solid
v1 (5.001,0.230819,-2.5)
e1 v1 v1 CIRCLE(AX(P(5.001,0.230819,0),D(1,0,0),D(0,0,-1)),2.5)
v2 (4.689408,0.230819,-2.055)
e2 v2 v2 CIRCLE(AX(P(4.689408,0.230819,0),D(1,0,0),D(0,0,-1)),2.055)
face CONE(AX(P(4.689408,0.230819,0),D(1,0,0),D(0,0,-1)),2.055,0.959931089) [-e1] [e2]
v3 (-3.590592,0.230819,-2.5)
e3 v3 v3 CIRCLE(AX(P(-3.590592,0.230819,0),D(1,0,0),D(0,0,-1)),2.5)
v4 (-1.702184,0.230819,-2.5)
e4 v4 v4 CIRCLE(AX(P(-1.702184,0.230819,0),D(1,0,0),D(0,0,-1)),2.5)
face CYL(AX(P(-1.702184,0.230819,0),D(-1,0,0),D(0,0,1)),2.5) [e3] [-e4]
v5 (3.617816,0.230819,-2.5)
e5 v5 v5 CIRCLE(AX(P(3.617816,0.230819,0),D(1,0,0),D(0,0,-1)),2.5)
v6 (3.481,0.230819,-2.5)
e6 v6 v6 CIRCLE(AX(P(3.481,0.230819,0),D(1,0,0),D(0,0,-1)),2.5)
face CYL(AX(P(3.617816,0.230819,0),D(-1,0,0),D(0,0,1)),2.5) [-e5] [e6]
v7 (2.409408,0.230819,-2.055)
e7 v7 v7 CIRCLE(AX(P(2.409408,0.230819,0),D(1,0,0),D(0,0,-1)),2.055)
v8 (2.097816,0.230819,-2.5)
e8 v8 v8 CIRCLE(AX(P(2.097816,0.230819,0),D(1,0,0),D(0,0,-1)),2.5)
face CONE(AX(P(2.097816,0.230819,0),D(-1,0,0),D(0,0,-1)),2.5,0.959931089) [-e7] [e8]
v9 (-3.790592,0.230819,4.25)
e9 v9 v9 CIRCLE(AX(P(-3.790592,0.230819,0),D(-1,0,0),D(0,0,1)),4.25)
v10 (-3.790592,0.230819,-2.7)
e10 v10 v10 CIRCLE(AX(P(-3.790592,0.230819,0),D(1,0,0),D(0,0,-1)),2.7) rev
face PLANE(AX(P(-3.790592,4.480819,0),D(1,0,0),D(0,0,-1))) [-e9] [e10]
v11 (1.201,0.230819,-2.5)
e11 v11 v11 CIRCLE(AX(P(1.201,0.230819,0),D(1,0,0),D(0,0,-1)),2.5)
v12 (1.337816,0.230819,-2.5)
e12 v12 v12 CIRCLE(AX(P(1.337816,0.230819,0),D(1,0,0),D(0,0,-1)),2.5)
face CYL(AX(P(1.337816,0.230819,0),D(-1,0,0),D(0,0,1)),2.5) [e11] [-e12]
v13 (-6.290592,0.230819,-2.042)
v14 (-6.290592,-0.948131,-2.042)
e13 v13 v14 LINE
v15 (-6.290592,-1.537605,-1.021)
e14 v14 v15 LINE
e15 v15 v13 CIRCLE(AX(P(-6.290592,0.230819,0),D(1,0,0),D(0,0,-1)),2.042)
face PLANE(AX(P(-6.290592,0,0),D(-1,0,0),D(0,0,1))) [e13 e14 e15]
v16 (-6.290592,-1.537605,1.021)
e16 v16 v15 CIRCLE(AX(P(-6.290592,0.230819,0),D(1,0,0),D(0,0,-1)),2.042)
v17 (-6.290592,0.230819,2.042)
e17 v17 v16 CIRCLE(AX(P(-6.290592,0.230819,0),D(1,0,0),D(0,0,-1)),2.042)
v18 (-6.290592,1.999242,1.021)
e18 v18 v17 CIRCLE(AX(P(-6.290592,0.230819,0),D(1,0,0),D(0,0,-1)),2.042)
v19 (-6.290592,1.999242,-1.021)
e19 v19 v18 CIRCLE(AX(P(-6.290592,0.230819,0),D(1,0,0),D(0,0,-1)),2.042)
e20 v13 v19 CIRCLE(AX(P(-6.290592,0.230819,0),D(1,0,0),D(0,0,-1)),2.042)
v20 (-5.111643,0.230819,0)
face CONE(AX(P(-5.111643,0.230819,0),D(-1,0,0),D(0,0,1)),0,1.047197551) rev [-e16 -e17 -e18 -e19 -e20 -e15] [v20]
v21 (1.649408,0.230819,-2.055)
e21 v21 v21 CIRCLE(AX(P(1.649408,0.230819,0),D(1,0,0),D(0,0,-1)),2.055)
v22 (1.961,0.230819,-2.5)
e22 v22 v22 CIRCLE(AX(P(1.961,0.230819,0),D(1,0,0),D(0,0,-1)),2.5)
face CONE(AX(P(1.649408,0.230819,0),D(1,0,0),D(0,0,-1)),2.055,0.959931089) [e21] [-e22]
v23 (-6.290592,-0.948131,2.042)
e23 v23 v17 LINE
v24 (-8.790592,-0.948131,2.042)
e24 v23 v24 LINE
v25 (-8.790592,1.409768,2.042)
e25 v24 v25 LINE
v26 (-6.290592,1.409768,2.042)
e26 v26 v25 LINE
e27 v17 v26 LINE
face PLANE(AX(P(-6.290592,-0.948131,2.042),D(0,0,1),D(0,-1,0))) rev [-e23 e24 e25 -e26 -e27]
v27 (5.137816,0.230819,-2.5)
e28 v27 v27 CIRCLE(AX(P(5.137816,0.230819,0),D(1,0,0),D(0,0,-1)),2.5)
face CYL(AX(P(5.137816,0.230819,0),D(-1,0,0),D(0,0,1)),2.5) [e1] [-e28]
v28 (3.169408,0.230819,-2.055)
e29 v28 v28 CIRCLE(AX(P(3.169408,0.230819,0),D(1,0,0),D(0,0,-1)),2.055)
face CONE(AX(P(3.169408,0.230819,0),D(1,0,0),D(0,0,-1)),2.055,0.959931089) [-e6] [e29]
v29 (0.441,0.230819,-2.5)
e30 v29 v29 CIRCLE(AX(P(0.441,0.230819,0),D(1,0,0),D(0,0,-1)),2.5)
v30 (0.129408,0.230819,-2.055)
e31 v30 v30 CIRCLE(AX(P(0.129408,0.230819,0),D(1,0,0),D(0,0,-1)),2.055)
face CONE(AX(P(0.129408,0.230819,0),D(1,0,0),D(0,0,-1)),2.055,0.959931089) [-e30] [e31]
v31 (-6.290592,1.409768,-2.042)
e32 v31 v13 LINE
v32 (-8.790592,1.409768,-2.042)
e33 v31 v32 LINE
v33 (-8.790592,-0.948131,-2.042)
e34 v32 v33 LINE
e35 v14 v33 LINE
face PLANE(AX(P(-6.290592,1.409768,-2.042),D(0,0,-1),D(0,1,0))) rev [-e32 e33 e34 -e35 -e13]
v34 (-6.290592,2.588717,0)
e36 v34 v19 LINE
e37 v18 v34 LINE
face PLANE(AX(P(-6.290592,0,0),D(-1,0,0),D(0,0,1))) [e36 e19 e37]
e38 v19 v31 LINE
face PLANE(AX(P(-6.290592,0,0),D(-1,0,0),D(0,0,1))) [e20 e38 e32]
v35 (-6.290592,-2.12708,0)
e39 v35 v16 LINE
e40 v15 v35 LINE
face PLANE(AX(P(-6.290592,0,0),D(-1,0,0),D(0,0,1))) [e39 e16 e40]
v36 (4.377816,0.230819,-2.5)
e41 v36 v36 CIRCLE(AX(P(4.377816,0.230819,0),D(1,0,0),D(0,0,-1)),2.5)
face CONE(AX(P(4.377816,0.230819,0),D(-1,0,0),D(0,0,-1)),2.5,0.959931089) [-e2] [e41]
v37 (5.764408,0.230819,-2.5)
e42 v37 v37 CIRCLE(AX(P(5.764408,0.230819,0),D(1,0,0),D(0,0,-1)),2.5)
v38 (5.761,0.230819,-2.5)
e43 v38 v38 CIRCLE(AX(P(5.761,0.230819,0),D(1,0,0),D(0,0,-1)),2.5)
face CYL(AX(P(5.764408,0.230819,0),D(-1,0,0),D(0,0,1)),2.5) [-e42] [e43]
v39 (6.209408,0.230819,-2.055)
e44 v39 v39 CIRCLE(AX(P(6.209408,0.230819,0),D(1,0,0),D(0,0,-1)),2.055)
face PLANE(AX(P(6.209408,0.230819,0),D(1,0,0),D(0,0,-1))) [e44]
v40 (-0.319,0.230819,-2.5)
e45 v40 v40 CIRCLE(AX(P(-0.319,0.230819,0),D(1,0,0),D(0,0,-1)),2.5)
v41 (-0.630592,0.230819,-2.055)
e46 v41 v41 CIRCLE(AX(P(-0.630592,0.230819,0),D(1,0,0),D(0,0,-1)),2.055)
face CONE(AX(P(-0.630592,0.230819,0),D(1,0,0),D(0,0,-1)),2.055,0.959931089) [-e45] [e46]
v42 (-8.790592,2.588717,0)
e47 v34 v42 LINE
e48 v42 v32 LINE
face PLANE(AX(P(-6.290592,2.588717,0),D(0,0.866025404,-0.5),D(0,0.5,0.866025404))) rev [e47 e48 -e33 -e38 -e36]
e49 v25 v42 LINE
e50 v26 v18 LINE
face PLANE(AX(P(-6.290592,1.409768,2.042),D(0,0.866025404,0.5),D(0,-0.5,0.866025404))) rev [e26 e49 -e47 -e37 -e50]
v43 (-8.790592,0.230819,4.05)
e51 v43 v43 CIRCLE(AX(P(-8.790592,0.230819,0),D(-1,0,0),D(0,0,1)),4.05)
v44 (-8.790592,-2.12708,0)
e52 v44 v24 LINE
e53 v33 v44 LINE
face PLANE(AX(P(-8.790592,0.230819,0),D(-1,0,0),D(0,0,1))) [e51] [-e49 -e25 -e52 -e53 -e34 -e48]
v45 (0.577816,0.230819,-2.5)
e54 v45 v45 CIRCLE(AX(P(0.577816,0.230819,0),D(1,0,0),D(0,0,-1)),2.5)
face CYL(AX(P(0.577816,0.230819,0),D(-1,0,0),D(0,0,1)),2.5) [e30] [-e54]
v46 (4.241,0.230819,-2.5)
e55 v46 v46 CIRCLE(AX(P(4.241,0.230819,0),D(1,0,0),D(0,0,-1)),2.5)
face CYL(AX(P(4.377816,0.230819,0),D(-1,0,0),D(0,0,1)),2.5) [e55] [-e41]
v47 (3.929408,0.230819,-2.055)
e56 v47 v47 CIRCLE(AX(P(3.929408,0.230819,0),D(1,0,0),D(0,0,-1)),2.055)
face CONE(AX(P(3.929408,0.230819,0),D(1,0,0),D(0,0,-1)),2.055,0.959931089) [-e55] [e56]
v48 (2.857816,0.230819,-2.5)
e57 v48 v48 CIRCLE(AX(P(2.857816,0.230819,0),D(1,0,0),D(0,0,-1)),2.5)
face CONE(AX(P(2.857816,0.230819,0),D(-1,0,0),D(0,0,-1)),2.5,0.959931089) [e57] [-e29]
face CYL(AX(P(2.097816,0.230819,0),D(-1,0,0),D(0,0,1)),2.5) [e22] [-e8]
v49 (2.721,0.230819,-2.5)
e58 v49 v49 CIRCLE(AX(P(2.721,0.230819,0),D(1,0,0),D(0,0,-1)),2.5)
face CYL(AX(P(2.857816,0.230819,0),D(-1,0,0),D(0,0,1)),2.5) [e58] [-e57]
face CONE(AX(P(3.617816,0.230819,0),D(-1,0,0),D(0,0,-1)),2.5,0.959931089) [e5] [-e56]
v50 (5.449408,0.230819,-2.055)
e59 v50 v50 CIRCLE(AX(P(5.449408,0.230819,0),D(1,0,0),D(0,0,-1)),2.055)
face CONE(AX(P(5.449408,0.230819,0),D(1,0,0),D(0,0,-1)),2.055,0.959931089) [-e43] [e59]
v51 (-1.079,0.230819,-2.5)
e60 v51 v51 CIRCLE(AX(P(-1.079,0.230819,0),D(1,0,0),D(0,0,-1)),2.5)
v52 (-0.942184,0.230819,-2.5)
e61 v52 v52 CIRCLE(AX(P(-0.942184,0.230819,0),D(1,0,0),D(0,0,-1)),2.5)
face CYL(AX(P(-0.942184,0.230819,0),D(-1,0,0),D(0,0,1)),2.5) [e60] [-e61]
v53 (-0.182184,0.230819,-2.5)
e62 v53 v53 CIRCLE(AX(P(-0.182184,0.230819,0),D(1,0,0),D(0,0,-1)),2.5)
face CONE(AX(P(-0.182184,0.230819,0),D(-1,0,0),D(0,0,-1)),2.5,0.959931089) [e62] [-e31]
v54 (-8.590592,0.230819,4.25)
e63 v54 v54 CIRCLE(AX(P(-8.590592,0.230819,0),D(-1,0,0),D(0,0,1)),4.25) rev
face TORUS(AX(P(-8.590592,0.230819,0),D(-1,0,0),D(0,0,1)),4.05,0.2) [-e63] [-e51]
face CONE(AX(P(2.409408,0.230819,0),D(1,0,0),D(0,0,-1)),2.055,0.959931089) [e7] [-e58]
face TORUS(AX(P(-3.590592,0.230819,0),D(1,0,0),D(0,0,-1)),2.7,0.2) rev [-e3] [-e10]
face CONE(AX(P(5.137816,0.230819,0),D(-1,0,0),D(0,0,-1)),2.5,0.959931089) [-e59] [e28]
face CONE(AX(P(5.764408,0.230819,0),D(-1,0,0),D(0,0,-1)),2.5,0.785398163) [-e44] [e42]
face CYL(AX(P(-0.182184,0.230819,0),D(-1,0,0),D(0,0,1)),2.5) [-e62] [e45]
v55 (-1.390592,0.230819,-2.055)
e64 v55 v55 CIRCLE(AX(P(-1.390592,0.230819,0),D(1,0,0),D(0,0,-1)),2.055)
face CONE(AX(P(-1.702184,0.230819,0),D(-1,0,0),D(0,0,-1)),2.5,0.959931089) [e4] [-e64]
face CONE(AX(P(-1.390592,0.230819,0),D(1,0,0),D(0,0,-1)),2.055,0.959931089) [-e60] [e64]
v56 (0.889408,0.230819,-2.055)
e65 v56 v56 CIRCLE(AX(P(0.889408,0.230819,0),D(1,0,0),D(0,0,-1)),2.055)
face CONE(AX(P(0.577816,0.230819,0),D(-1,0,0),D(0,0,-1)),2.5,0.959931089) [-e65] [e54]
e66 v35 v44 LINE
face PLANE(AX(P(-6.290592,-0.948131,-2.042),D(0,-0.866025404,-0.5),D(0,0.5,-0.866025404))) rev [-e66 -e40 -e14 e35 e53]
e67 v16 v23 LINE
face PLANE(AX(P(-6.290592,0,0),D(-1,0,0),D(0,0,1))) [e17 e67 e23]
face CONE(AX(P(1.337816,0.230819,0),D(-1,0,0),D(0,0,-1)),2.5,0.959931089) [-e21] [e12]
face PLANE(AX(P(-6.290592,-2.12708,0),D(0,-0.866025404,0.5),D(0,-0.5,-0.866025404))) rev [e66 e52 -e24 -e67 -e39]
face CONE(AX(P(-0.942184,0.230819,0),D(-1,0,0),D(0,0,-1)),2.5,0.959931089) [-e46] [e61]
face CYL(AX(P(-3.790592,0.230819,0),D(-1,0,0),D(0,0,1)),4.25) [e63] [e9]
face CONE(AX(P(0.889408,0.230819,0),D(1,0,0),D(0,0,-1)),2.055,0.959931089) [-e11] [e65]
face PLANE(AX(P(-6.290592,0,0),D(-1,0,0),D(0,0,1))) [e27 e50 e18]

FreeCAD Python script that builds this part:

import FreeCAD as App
import Part
import Sketcher
Q = App.Units.Quantity


def edges_at(feature, points):
    """Names of the edges that pass closest to the given points."""
    edges = feature.Shape.Edges
    near = lambda p: min(range(len(edges)), key=lambda i: edges[i].distToShape(Part.Vertex(*p))[0])
    return sorted({f"Edge{near(p) + 1}" for p in points})


def add_polygon(sketch, points):
    """Adds a closed chain of lines whose ends are joined by coincident constraints."""
    first, n = sketch.GeometryCount, len(points)
    for a, b in zip(points, points[1:] + points[:1]):
        sketch.addGeometry(Part.LineSegment(App.Vector(*a, 0), App.Vector(*b, 0)), False)
    for i in range(n):
        sketch.addConstraint(Sketcher.Constraint("Coincident", first + i, 2, first + (i + 1) % n, 1))

doc = App.newDocument("Part")
body = doc.addObject("PartDesign::Body", "Body")

# Sketch on XY plane
sketch1 = body.newObject("Sketcher::SketchObject", "Sketch")
sketch1.AttachmentSupport = (doc.getObject("XY_Plane"), [""])
sketch1.MapMode = "FlatFace"
add_polygon(sketch1, [(-3.8, 4.5), (-3.8, 0.2), (-8.8, 0.2), (-8.8, 4.5)])  # lines 0-3
sketch1.addGeometry(Part.LineSegment(App.Vector(-3.8, 0.2, 0), App.Vector(-8.8, 0.2, 0)), True)  # axis
sketch1.addConstraint([
    Sketcher.Constraint("Vertical", 0),
    Sketcher.Constraint("Horizontal", 1),
    Sketcher.Constraint("Vertical", 2),
    Sketcher.Constraint("Horizontal", 3),
    Sketcher.Constraint("Horizontal", 4),
    Sketcher.Constraint("Coincident", 4, 1, 0, 2),
    Sketcher.Constraint("Vertical", 2, 2, 4, 2),
    Sketcher.Constraint("DistanceX", 1, 2, 1, 1, 5.0),
    Sketcher.Constraint("DistanceY", 0, 2, 0, 1, 4.25),
    Sketcher.Constraint("DistanceY", -1, 1, 0, 2, 0.230819),
    Sketcher.Constraint("DistanceX", 0, 2, -1, 1, 3.790592),
])
revolution = body.newObject("PartDesign::Revolution", "Revolution")
revolution.Profile = sketch1
revolution.ReferenceAxis = (sketch1, ["Axis0"])
revolution.Angle = 360

# Sketch on YZ plane
sketch2 = body.newObject("Sketcher::SketchObject", "Sketch001")
sketch2.AttachmentSupport = (doc.getObject("YZ_Plane"), [""])
sketch2.MapMode = "FlatFace"
sketch2.AttachmentOffset = App.Placement(App.Vector(0, 0, -3.790592), App.Rotation())
sketch2.addGeometry(Part.Circle(App.Vector(0.2, 0, 0), App.Vector(0, 0, 1), 2.5), False)
sketch2.addConstraint([
    Sketcher.Constraint("PointOnObject", 0, 3, -1),
    Sketcher.Constraint("Diameter", 0, 5.0),
    Sketcher.Constraint("DistanceX", -1, 1, 0, 3, 0.230819),
])
pad1 = body.newObject("PartDesign::Pad", "Pad")
pad1.Profile = sketch2
pad1.Length = 2.088408

# Sketch on YZ plane
sketch3 = body.newObject("Sketcher::SketchObject", "Sketch002")
sketch3.AttachmentSupport = (doc.getObject("YZ_Plane"), [""])
sketch3.MapMode = "FlatFace"
sketch3.AttachmentOffset = App.Placement(App.Vector(0, 0, -1.702184), App.Rotation())
sketch3.addGeometry(Part.Circle(App.Vector(0.2, 0, 0), App.Vector(0, 0, 1), 2.5), False)
sketch3.addConstraint([
    Sketcher.Constraint("PointOnObject", 0, 3, -1),
    Sketcher.Constraint("Diameter", 0, 5.0),
    Sketcher.Constraint("DistanceX", -1, 1, 0, 3, 0.230819),
])
pad2 = body.newObject("PartDesign::Pad", "Pad001")
pad2.Profile = sketch3
pad2.Length = 0.311592
pad2.TaperAngle = -55

# Sketch on YZ plane
sketch4 = body.newObject("Sketcher::SketchObject", "Sketch003")
sketch4.AttachmentSupport = (doc.getObject("YZ_Plane"), [""])
sketch4.MapMode = "FlatFace"
sketch4.AttachmentOffset = App.Placement(App.Vector(0, 0, -1.390592), App.Rotation())
sketch4.addGeometry(Part.Circle(App.Vector(0.2, 0, 0), App.Vector(0, 0, 1), 2.1), False)
sketch4.addConstraint([
    Sketcher.Constraint("PointOnObject", 0, 3, -1),
    Sketcher.Constraint("Diameter", 0, 4.11),
    Sketcher.Constraint("DistanceX", -1, 1, 0, 3, 0.230819),
])
pad3 = body.newObject("PartDesign::Pad", "Pad002")
pad3.Profile = sketch4
pad3.Length = 0.311592
pad3.TaperAngle = 55

# Sketch on YZ plane
sketch5 = body.newObject("Sketcher::SketchObject", "Sketch004")
sketch5.AttachmentSupport = (doc.getObject("YZ_Plane"), [""])
sketch5.MapMode = "FlatFace"
sketch5.AttachmentOffset = App.Placement(App.Vector(0, 0, -1.079), App.Rotation())
sketch5.addGeometry(Part.Circle(App.Vector(0.2, 0, 0), App.Vector(0, 0, 1), 2.5), False)
sketch5.addConstraint([
    Sketcher.Constraint("PointOnObject", 0, 3, -1),
    Sketcher.Constraint("Diameter", 0, 5.0),
    Sketcher.Constraint("DistanceX", -1, 1, 0, 3, 0.230819),
])
pad4 = body.newObject("PartDesign::Pad", "Pad003")
pad4.Profile = sketch5
pad4.Length = 0.136815

# Sketch on YZ plane
sketch6 = body.newObject("Sketcher::SketchObject", "Sketch005")
sketch6.AttachmentSupport = (doc.getObject("YZ_Plane"), [""])
sketch6.MapMode = "FlatFace"
sketch6.AttachmentOffset = App.Placement(App.Vector(0, 0, -0.942184), App.Rotation())
sketch6.addGeometry(Part.Circle(App.Vector(0.2, 0, 0), App.Vector(0, 0, 1), 2.5), False)
sketch6.addConstraint([
    Sketcher.Constraint("PointOnObject", 0, 3, -1),
    Sketcher.Constraint("Diameter", 0, 5.0),
    Sketcher.Constraint("DistanceX", -1, 1, 0, 3, 0.230819),
])
pad5 = body.newObject("PartDesign::Pad", "Pad004")
pad5.Profile = sketch6
pad5.Length = 0.311592
pad5.TaperAngle = -55

# Sketch on YZ plane
sketch7 = body.newObject("Sketcher::SketchObject", "Sketch006")
sketch7.AttachmentSupport = (doc.getObject("YZ_Plane"), [""])
sketch7.MapMode = "FlatFace"
sketch7.AttachmentOffset = App.Placement(App.Vector(0, 0, -0.630592), App.Rotation())
sketch7.addGeometry(Part.Circle(App.Vector(0.2, 0, 0), App.Vector(0, 0, 1), 2.1), False)
sketch7.addConstraint([
    Sketcher.Constraint("PointOnObject", 0, 3, -1),
    Sketcher.Constraint("Diameter", 0, 4.11),
    Sketcher.Constraint("DistanceX", -1, 1, 0, 3, 0.230819),
])
pad6 = body.newObject("PartDesign::Pad", "Pad005")
pad6.Profile = sketch7
pad6.Length = 0.311592
pad6.TaperAngle = 55

# Sketch on YZ plane
sketch8 = body.newObject("Sketcher::SketchObject", "Sketch007")
sketch8.AttachmentSupport = (doc.getObject("YZ_Plane"), [""])
sketch8.MapMode = "FlatFace"
sketch8.AttachmentOffset = App.Placement(App.Vector(0, 0, -0.319), App.Rotation())
sketch8.addGeometry(Part.Circle(App.Vector(0.2, 0, 0), App.Vector(0, 0, 1), 2.5), False)
sketch8.addConstraint([
    Sketcher.Constraint("PointOnObject", 0, 3, -1),
    Sketcher.Constraint("Diameter", 0, 5.0),
    Sketcher.Constraint("DistanceX", -1, 1, 0, 3, 0.230819),
])
pad7 = body.newObject("PartDesign::Pad", "Pad006")
pad7.Profile = sketch8
pad7.Length = 0.136815

# Sketch on YZ plane
sketch9 = body.newObject("Sketcher::SketchObject", "Sketch008")
sketch9.AttachmentSupport = (doc.getObject("YZ_Plane"), [""])
sketch9.MapMode = "FlatFace"
sketch9.AttachmentOffset = App.Placement(App.Vector(0, 0, -0.182184), App.Rotation())
sketch9.addGeometry(Part.Circle(App.Vector(0.2, 0, 0), App.Vector(0, 0, 1), 2.5), False)
sketch9.addConstraint([
    Sketcher.Constraint("PointOnObject", 0, 3, -1),
    Sketcher.Constraint("Diameter", 0, 5.0),
    Sketcher.Constraint("DistanceX", -1, 1, 0, 3, 0.230819),
])
pad8 = body.newObject("PartDesign::Pad", "Pad007")
pad8.Profile = sketch9
pad8.Length = 0.311592
pad8.TaperAngle = -55

# Sketch on YZ plane
sketch10 = body.newObject("Sketcher::SketchObject", "Sketch009")
sketch10.AttachmentSupport = (doc.getObject("YZ_Plane"), [""])
sketch10.MapMode = "FlatFace"
sketch10.AttachmentOffset = App.Placement(App.Vector(0, 0, 0.129408), App.Rotation())
sketch10.addGeometry(Part.Circle(App.Vector(0.2, 0, 0), App.Vector(0, 0, 1), 2.1), False)
sketch10.addConstraint([
    Sketcher.Constraint("PointOnObject", 0, 3, -1),
    Sketcher.Constraint("Diameter", 0, 4.11),
    Sketcher.Constraint("DistanceX", -1, 1, 0, 3, 0.230819),
])
pad9 = body.newObject("PartDesign::Pad", "Pad008")
pad9.Profile = sketch10
pad9.Length = 0.311592
pad9.TaperAngle = 55

# Sketch on YZ plane
sketch11 = body.newObject("Sketcher::SketchObject", "Sketch010")
sketch11.AttachmentSupport = (doc.getObject("YZ_Plane"), [""])
sketch11.MapMode = "FlatFace"
sketch11.AttachmentOffset = App.Placement(App.Vector(0, 0, 0.441), App.Rotation())
sketch11.addGeometry(Part.Circle(App.Vector(0.2, 0, 0), App.Vector(0, 0, 1), 2.5), False)
sketch11.addConstraint([
    Sketcher.Constraint("PointOnObject", 0, 3, -1),
    Sketcher.Constraint("Diameter", 0, 5.0),
    Sketcher.Constraint("DistanceX", -1, 1, 0, 3, 0.230819),
])
pad10 = body.newObject("PartDesign::Pad", "Pad009")
pad10.Profile = sketch11
pad10.Length = 0.136815

# Sketch on YZ plane
sketch12 = body.newObject("Sketcher::SketchObject", "Sketch011")
sketch12.AttachmentSupport = (doc.getObject("YZ_Plane"), [""])
sketch12.MapMode = "FlatFace"
sketch12.AttachmentOffset = App.Placement(App.Vector(0, 0, 0.577816), App.Rotation())
sketch12.addGeometry(Part.Circle(App.Vector(0.2, 0, 0), App.Vector(0, 0, 1), 2.5), False)
sketch12.addConstraint([
    Sketcher.Constraint("PointOnObject", 0, 3, -1),
    Sketcher.Constraint("Diameter", 0, 5.0),
    Sketcher.Constraint("DistanceX", -1, 1, 0, 3, 0.230819),
])
pad11 = body.newObject("PartDesign::Pad", "Pad010")
pad11.Profile = sketch12
pad11.Length = 0.311592
pad11.TaperAngle = -55

# Sketch on YZ plane
sketch13 = body.newObject("Sketcher::SketchObject", "Sketch012")
sketch13.AttachmentSupport = (doc.getObject("YZ_Plane"), [""])
sketch13.MapMode = "FlatFace"
sketch13.AttachmentOffset = App.Placement(App.Vector(0, 0, 0.889408), App.Rotation())
sketch13.addGeometry(Part.Circle(App.Vector(0.2, 0, 0), App.Vector(0, 0, 1), 2.1), False)
sketch13.addConstraint([
    Sketcher.Constraint("PointOnObject", 0, 3, -1),
    Sketcher.Constraint("Diameter", 0, 4.11),
    Sketcher.Constraint("DistanceX", -1, 1, 0, 3, 0.230819),
])
pad12 = body.newObject("PartDesign::Pad", "Pad011")
pad12.Profile = sketch13
pad12.Length = 0.311592
pad12.TaperAngle = 55

# Sketch on YZ plane
sketch14 = body.newObject("Sketcher::SketchObject", "Sketch013")
sketch14.AttachmentSupport = (doc.getObject("YZ_Plane"), [""])
sketch14.MapMode = "FlatFace"
sketch14.AttachmentOffset = App.Placement(App.Vector(0, 0, 1.201), App.Rotation())
sketch14.addGeometry(Part.Circle(App.Vector(0.2, 0, 0), App.Vector(0, 0, 1), 2.5), False)
sketch14.addConstraint([
    Sketcher.Constraint("PointOnObject", 0, 3, -1),
    Sketcher.Constraint("Diameter", 0, 5.0),
    Sketcher.Constraint("DistanceX", -1, 1, 0, 3, 0.230819),
])
pad13 = body.newObject("PartDesign::Pad", "Pad012")
pad13.Profile = sketch14
pad13.Length = 0.136815

# Sketch on YZ plane
sketch15 = body.newObject("Sketcher::SketchObject", "Sketch014")
sketch15.AttachmentSupport = (doc.getObject("YZ_Plane"), [""])
sketch15.MapMode = "FlatFace"
sketch15.AttachmentOffset = App.Placement(App.Vector(0, 0, 1.337816), App.Rotation())
sketch15.addGeometry(Part.Circle(App.Vector(0.2, 0, 0), App.Vector(0, 0, 1), 2.5), False)
sketch15.addConstraint([
    Sketcher.Constraint("PointOnObject", 0, 3, -1),
    Sketcher.Constraint("Diameter", 0, 5.0),
    Sketcher.Constraint("DistanceX", -1, 1, 0, 3, 0.230819),
])
pad14 = body.newObject("PartDesign::Pad", "Pad013")
pad14.Profile = sketch15
pad14.Length = 0.311592
pad14.TaperAngle = -55

# Sketch on YZ plane
sketch16 = body.newObject("Sketcher::SketchObject", "Sketch015")
sketch16.AttachmentSupport = (doc.getObject("YZ_Plane"), [""])
sketch16.MapMode = "FlatFace"
sketch16.AttachmentOffset = App.Placement(App.Vector(0, 0, 1.649408), App.Rotation())
sketch16.addGeometry(Part.Circle(App.Vector(0.2, 0, 0), App.Vector(0, 0, 1), 2.1), False)
sketch16.addConstraint([
    Sketcher.Constraint("PointOnObject", 0, 3, -1),
    Sketcher.Constraint("Diameter", 0, 4.11),
    Sketcher.Constraint("DistanceX", -1, 1, 0, 3, 0.230819),
])
pad15 = body.newObject("PartDesign::Pad", "Pad014")
pad15.Profile = sketch16
pad15.Length = 0.311592
pad15.TaperAngle = 55

# Sketch on YZ plane
sketch17 = body.newObject("Sketcher::SketchObject", "Sketch016")
sketch17.AttachmentSupport = (doc.getObject("YZ_Plane"), [""])
sketch17.MapMode = "FlatFace"
sketch17.AttachmentOffset = App.Placement(App.Vector(0, 0, 1.961), App.Rotation())
sketch17.addGeometry(Part.Circle(App.Vector(0.2, 0, 0), App.Vector(0, 0, 1), 2.5), False)
sketch17.addConstraint([
    Sketcher.Constraint("PointOnObject", 0, 3, -1),
    Sketcher.Constraint("Diameter", 0, 5.0),
    Sketcher.Constraint("DistanceX", -1, 1, 0, 3, 0.230819),
])
pad16 = body.newObject("PartDesign::Pad", "Pad015")
pad16.Profile = sketch17
pad16.Length = 0.136815

# Sketch on YZ plane
sketch18 = body.newObject("Sketcher::SketchObject", "Sketch017")
sketch18.AttachmentSupport = (doc.getObject("YZ_Plane"), [""])
sketch18.MapMode = "FlatFace"
sketch18.AttachmentOffset = App.Placement(App.Vector(0, 0, 2.097816), App.Rotation())
sketch18.addGeometry(Part.Circle(App.Vector(0.2, 0, 0), App.Vector(0, 0, 1), 2.5), False)
sketch18.addConstraint([
    Sketcher.Constraint("PointOnObject", 0, 3, -1),
    Sketcher.Constraint("Diameter", 0, 5.0),
    Sketcher.Constraint("DistanceX", -1, 1, 0, 3, 0.230819),
])
pad17 = body.newObject("PartDesign::Pad", "Pad016")
pad17.Profile = sketch18
pad17.Length = 0.311592
pad17.TaperAngle = -55

# Sketch on YZ plane
sketch19 = body.newObject("Sketcher::SketchObject", "Sketch018")
sketch19.AttachmentSupport = (doc.getObject("YZ_Plane"), [""])
sketch19.MapMode = "FlatFace"
sketch19.AttachmentOffset = App.Placement(App.Vector(0, 0, 2.409408), App.Rotation())
sketch19.addGeometry(Part.Circle(App.Vector(0.2, 0, 0), App.Vector(0, 0, 1), 2.1), False)
sketch19.addConstraint([
    Sketcher.Constraint("PointOnObject", 0, 3, -1),
    Sketcher.Constraint("Diameter", 0, 4.11),
    Sketcher.Constraint("DistanceX", -1, 1, 0, 3, 0.230819),
])
pad18 = body.newObject("PartDesign::Pad", "Pad017")
pad18.Profile = sketch19
pad18.Length = 0.311592
pad18.TaperAngle = 55

# Sketch on YZ plane
sketch20 = body.newObject("Sketcher::SketchObject", "Sketch019")
sketch20.AttachmentSupport = (doc.getObject("YZ_Plane"), [""])
sketch20.MapMode = "FlatFace"
sketch20.AttachmentOffset = App.Placement(App.Vector(0, 0, 2.721), App.Rotation())
sketch20.addGeometry(Part.Circle(App.Vector(0.2, 0, 0), App.Vector(0, 0, 1), 2.5), False)
sketch20.addConstraint([
    Sketcher.Constraint("PointOnObject", 0, 3, -1),
    Sketcher.Constraint("Diameter", 0, 5.0),
    Sketcher.Constraint("DistanceX", -1, 1, 0, 3, 0.230819),
])
pad19 = body.newObject("PartDesign::Pad", "Pad018")
pad19.Profile = sketch20
pad19.Length = 0.136815

# Sketch on YZ plane
sketch21 = body.newObject("Sketcher::SketchObject", "Sketch020")
sketch21.AttachmentSupport = (doc.getObject("YZ_Plane"), [""])
sketch21.MapMode = "FlatFace"
sketch21.AttachmentOffset = App.Placement(App.Vector(0, 0, 2.857816), App.Rotation())
sketch21.addGeometry(Part.Circle(App.Vector(0.2, 0, 0), App.Vector(0, 0, 1), 2.5), False)
sketch21.addConstraint([
    Sketcher.Constraint("PointOnObject", 0, 3, -1),
    Sketcher.Constraint("Diameter", 0, 5.0),
    Sketcher.Constraint("DistanceX", -1, 1, 0, 3, 0.230819),
])
pad20 = body.newObject("PartDesign::Pad", "Pad019")
pad20.Profile = sketch21
pad20.Length = 0.311592
pad20.TaperAngle = -55

# Sketch on YZ plane
sketch22 = body.newObject("Sketcher::SketchObject", "Sketch021")
sketch22.AttachmentSupport = (doc.getObject("YZ_Plane"), [""])
sketch22.MapMode = "FlatFace"
sketch22.AttachmentOffset = App.Placement(App.Vector(0, 0, 3.169408), App.Rotation())
sketch22.addGeometry(Part.Circle(App.Vector(0.2, 0, 0), App.Vector(0, 0, 1), 2.1), False)
sketch22.addConstraint([
    Sketcher.Constraint("PointOnObject", 0, 3, -1),
    Sketcher.Constraint("Diameter", 0, 4.11),
    Sketcher.Constraint("DistanceX", -1, 1, 0, 3, 0.230819),
])
pad21 = body.newObject("PartDesign::Pad", "Pad020")
pad21.Profile = sketch22
pad21.Length = 0.311592
pad21.TaperAngle = 55

# Sketch on YZ plane
sketch23 = body.newObject("Sketcher::SketchObject", "Sketch022")
sketch23.AttachmentSupport = (doc.getObject("YZ_Plane"), [""])
sketch23.MapMode = "FlatFace"
sketch23.AttachmentOffset = App.Placement(App.Vector(0, 0, 3.481), App.Rotation())
sketch23.addGeometry(Part.Circle(App.Vector(0.2, 0, 0), App.Vector(0, 0, 1), 2.5), False)
sketch23.addConstraint([
    Sketcher.Constraint("PointOnObject", 0, 3, -1),
    Sketcher.Constraint("Diameter", 0, 5.0),
    Sketcher.Constraint("DistanceX", -1, 1, 0, 3, 0.230819),
])
pad22 = body.newObject("PartDesign::Pad", "Pad021")
pad22.Profile = sketch23
pad22.Length = 0.136815

# Sketch on YZ plane
sketch24 = body.newObject("Sketcher::SketchObject", "Sketch023")
sketch24.AttachmentSupport = (doc.getObject("YZ_Plane"), [""])
sketch24.MapMode = "FlatFace"
sketch24.AttachmentOffset = App.Placement(App.Vector(0, 0, 3.617816), App.Rotation())
sketch24.addGeometry(Part.Circle(App.Vector(0.2, 0, 0), App.Vector(0, 0, 1), 2.5), False)
sketch24.addConstraint([
    Sketcher.Constraint("PointOnObject", 0, 3, -1),
    Sketcher.Constraint("Diameter", 0, 5.0),
    Sketcher.Constraint("DistanceX", -1, 1, 0, 3, 0.230819),
])
pad23 = body.newObject("PartDesign::Pad", "Pad022")
pad23.Profile = sketch24
pad23.Length = 0.311592
pad23.TaperAngle = -55

# Sketch on YZ plane
sketch25 = body.newObject("Sketcher::SketchObject", "Sketch024")
sketch25.AttachmentSupport = (doc.getObject("YZ_Plane"), [""])
sketch25.MapMode = "FlatFace"
sketch25.AttachmentOffset = App.Placement(App.Vector(0, 0, 3.929408), App.Rotation())
sketch25.addGeometry(Part.Circle(App.Vector(0.2, 0, 0), App.Vector(0, 0, 1), 2.1), False)
sketch25.addConstraint([
    Sketcher.Constraint("PointOnObject", 0, 3, -1),
    Sketcher.Constraint("Diameter", 0, 4.11),
    Sketcher.Constraint("DistanceX", -1, 1, 0, 3, 0.230819),
])
pad24 = body.newObject("PartDesign::Pad", "Pad023")
pad24.Profile = sketch25
pad24.Length = 0.311592
pad24.TaperAngle = 55

# Sketch on YZ plane
sketch26 = body.newObject("Sketcher::SketchObject", "Sketch025")
sketch26.AttachmentSupport = (doc.getObject("YZ_Plane"), [""])
sketch26.MapMode = "FlatFace"
sketch26.AttachmentOffset = App.Placement(App.Vector(0, 0, 4.241), App.Rotation())
sketch26.addGeometry(Part.Circle(App.Vector(0.2, 0, 0), App.Vector(0, 0, 1), 2.5), False)
sketch26.addConstraint([
    Sketcher.Constraint("PointOnObject", 0, 3, -1),
    Sketcher.Constraint("Diameter", 0, 5.0),
    Sketcher.Constraint("DistanceX", -1, 1, 0, 3, 0.230819),
])
pad25 = body.newObject("PartDesign::Pad", "Pad024")
pad25.Profile = sketch26
pad25.Length = 0.136815

# Sketch on YZ plane
sketch27 = body.newObject("Sketcher::SketchObject", "Sketch026")
sketch27.AttachmentSupport = (doc.getObject("YZ_Plane"), [""])
sketch27.MapMode = "FlatFace"
sketch27.AttachmentOffset = App.Placement(App.Vector(0, 0, 4.377816), App.Rotation())
sketch27.addGeometry(Part.Circle(App.Vector(0.2, 0, 0), App.Vector(0, 0, 1), 2.5), False)
sketch27.addConstraint([
    Sketcher.Constraint("PointOnObject", 0, 3, -1),
    Sketcher.Constraint("Diameter", 0, 5.0),
    Sketcher.Constraint("DistanceX", -1, 1, 0, 3, 0.230819),
])
pad26 = body.newObject("PartDesign::Pad", "Pad025")
pad26.Profile = sketch27
pad26.Length = 0.311592
pad26.TaperAngle = -55

# Sketch on YZ plane
sketch28 = body.newObject("Sketcher::SketchObject", "Sketch027")
sketch28.AttachmentSupport = (doc.getObject("YZ_Plane"), [""])
sketch28.MapMode = "FlatFace"
sketch28.AttachmentOffset = App.Placement(App.Vector(0, 0, 4.689408), App.Rotation())
sketch28.addGeometry(Part.Circle(App.Vector(0.2, 0, 0), App.Vector(0, 0, 1), 2.1), False)
sketch28.addConstraint([
    Sketcher.Constraint("PointOnObject", 0, 3, -1),
    Sketcher.Constraint("Diameter", 0, 4.11),
    Sketcher.Constraint("DistanceX", -1, 1, 0, 3, 0.230819),
])
pad27 = body.newObject("PartDesign::Pad", "Pad026")
pad27.Profile = sketch28
pad27.Length = 0.311592
pad27.TaperAngle = 55

# Sketch on YZ plane
sketch29 = body.newObject("Sketcher::SketchObject", "Sketch028")
sketch29.AttachmentSupport = (doc.getObject("YZ_Plane"), [""])
sketch29.MapMode = "FlatFace"
sketch29.AttachmentOffset = App.Placement(App.Vector(0, 0, 5.001), App.Rotation())
sketch29.addGeometry(Part.Circle(App.Vector(0.2, 0, 0), App.Vector(0, 0, 1), 2.5), False)
sketch29.addConstraint([
    Sketcher.Constraint("PointOnObject", 0, 3, -1),
    Sketcher.Constraint("Diameter", 0, 5.0),
    Sketcher.Constraint("DistanceX", -1, 1, 0, 3, 0.230819),
])
pad28 = body.newObject("PartDesign::Pad", "Pad027")
pad28.Profile = sketch29
pad28.Length = 0.136815

# Sketch on YZ plane
sketch30 = body.newObject("Sketcher::SketchObject", "Sketch029")
sketch30.AttachmentSupport = (doc.getObject("YZ_Plane"), [""])
sketch30.MapMode = "FlatFace"
sketch30.AttachmentOffset = App.Placement(App.Vector(0, 0, 5.137816), App.Rotation())
sketch30.addGeometry(Part.Circle(App.Vector(0.2, 0, 0), App.Vector(0, 0, 1), 2.5), False)
sketch30.addConstraint([
    Sketcher.Constraint("PointOnObject", 0, 3, -1),
    Sketcher.Constraint("Diameter", 0, 5.0),
    Sketcher.Constraint("DistanceX", -1, 1, 0, 3, 0.230819),
])
pad29 = body.newObject("PartDesign::Pad", "Pad028")
pad29.Profile = sketch30
pad29.Length = 0.311592
pad29.TaperAngle = -55

# Sketch on YZ plane
sketch31 = body.newObject("Sketcher::SketchObject", "Sketch030")
sketch31.AttachmentSupport = (doc.getObject("YZ_Plane"), [""])
sketch31.MapMode = "FlatFace"
sketch31.AttachmentOffset = App.Placement(App.Vector(0, 0, 5.449408), App.Rotation())
sketch31.addGeometry(Part.Circle(App.Vector(0.2, 0, 0), App.Vector(0, 0, 1), 2.1), False)
sketch31.addConstraint([
    Sketcher.Constraint("PointOnObject", 0, 3, -1),
    Sketcher.Constraint("Diameter", 0, 4.11),
    Sketcher.Constraint("DistanceX", -1, 1, 0, 3, 0.230819),
])
pad30 = body.newObject("PartDesign::Pad", "Pad029")
pad30.Profile = sketch31
pad30.Length = 0.311592
pad30.TaperAngle = 55

# Sketch on YZ plane
sketch32 = body.newObject("Sketcher::SketchObject", "Sketch031")
sketch32.AttachmentSupport = (doc.getObject("YZ_Plane"), [""])
sketch32.MapMode = "FlatFace"
sketch32.AttachmentOffset = App.Placement(App.Vector(0, 0, 5.761), App.Rotation())
sketch32.addGeometry(Part.Circle(App.Vector(0.2, 0, 0), App.Vector(0, 0, 1), 2.5), False)
sketch32.addConstraint([
    Sketcher.Constraint("PointOnObject", 0, 3, -1),
    Sketcher.Constraint("Diameter", 0, 5.0),
    Sketcher.Constraint("DistanceX", -1, 1, 0, 3, 0.230819),
])
pad31 = body.newObject("PartDesign::Pad", "Pad030")
pad31.Profile = sketch32
pad31.Length = 0.003408

# Sketch on YZ plane
sketch33 = body.newObject("Sketcher::SketchObject", "Sketch032")
sketch33.AttachmentSupport = (doc.getObject("YZ_Plane"), [""])
sketch33.MapMode = "FlatFace"
sketch33.AttachmentOffset = App.Placement(App.Vector(0, 0, 5.764408), App.Rotation())
sketch33.addGeometry(Part.Circle(App.Vector(0.2, 0, 0), App.Vector(0, 0, 1), 2.5), False)
sketch33.addConstraint([
    Sketcher.Constraint("PointOnObject", 0, 3, -1),
    Sketcher.Constraint("Diameter", 0, 5.0),
    Sketcher.Constraint("DistanceX", -1, 1, 0, 3, 0.230819),
])
pad32 = body.newObject("PartDesign::Pad", "Pad031")
pad32.Profile = sketch33
pad32.Length = 0.445
pad32.TaperAngle = -45

# Sketch on YZ plane
sketch34 = body.newObject("Sketcher::SketchObject", "Sketch033")
sketch34.AttachmentSupport = (doc.getObject("YZ_Plane"), [""])
sketch34.MapMode = "FlatFace"
sketch34.AttachmentOffset = App.Placement(App.Vector(0, 0, -8.790592), App.Rotation())
add_polygon(sketch34, [(-2.1, 0), (-0.9, 2), (1.4, 2), (2.6, 0), (1.4, -2), (-0.9, -2)])  # lines 0-5
sketch34.addConstraint([
    Sketcher.Constraint("Horizontal", 1),
    Sketcher.Constraint("Horizontal", 4),
    Sketcher.Constraint("Symmetric", 1, 2, 3, 2, -1),
    Sketcher.Constraint("PointOnObject", 2, 2, -1),
    Sketcher.Constraint("PointOnObject", 5, 2, -1),
    Sketcher.Constraint("Parallel", 0, 3),
    Sketcher.Constraint("Parallel", 2, 5),
    Sketcher.Constraint("Angle", 0, Q("60 deg")),
    Sketcher.Constraint("DistanceX", 1, 1, 1, 2, 2.357898),
    Sketcher.Constraint("DistanceY", -1, 1, 0, 2, 2.042),
    Sketcher.Constraint("DistanceX", 0, 2, -1, 1, 0.948131),
])
pocket1 = body.newObject("PartDesign::Pocket", "Pocket")
pocket1.Profile = sketch34
pocket1.Length = 2.5
pocket1.Reversed = True

# Sketch on XY plane
sketch35 = body.newObject("Sketcher::SketchObject", "Sketch034")
sketch35.AttachmentSupport = (doc.getObject("XY_Plane"), [""])
sketch35.MapMode = "FlatFace"
add_polygon(sketch35, [(-6.3, 2.3), (-6.3, 0.2), (-5.1, 0.2)])  # lines 0-2
sketch35.addGeometry(Part.LineSegment(App.Vector(-6.3, 0.2, 0), App.Vector(-5.1, 0.2, 0)), True)  # axis
sketch35.addConstraint([
    Sketcher.Constraint("Vertical", 0),
    Sketcher.Constraint("Horizontal", 1),
    Sketcher.Constraint("Horizontal", 3),
    Sketcher.Constraint("Coincident", 3, 1, 0, 2),
    Sketcher.Constraint("Equal", 1, 3),
    Sketcher.Constraint("Angle", 2, Q("120 deg")),
    Sketcher.Constraint("DistanceY", 0, 2, 0, 1, 2.042),
    Sketcher.Constraint("DistanceY", -1, 1, 0, 2, 0.230819),
    Sketcher.Constraint("DistanceX", 0, 2, -1, 1, 6.290592),
])
groove = body.newObject("PartDesign::Groove", "Groove")
groove.Profile = sketch35
groove.ReferenceAxis = (sketch35, ["Axis0"])
groove.Angle = 360
doc.recompute()

fillet = body.newObject("PartDesign::Fillet", "Fillet")
fillet.Base = (groove, edges_at(groove, [(-8.791, -4.019, 0), (-3.791, 0.231, 2.5)]))
fillet.Radius = 0.2

doc.recompute()
